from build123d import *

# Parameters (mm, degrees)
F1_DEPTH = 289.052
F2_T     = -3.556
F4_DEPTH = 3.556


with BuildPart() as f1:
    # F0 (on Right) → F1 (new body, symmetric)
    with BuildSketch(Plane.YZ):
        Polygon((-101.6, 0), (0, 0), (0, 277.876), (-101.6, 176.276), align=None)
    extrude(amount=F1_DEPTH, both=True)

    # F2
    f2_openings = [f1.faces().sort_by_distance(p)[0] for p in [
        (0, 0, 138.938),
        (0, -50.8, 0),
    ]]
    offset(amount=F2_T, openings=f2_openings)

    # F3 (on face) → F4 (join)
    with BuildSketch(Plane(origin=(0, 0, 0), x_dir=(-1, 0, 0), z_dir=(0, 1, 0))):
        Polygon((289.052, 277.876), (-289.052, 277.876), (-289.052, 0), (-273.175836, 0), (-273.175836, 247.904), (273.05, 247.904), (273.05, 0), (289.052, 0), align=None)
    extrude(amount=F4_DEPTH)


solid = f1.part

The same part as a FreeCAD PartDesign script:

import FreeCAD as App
import Part
import Sketcher
Q = App.Units.Quantity


def faces_at(feature, points):
    """Names of the faces that lie closest to the given points."""
    faces = feature.Shape.Faces
    near = lambda p: min(range(len(faces)), key=lambda i: faces[i].distToShape(Part.Vertex(*p))[0])
    return sorted({f"Face{near(p) + 1}" for p in points})


def add_polygon(sketch, points):
    """Adds a closed chain of lines whose ends are joined by coincident constraints."""
    first, n = sketch.GeometryCount, len(points)
    for a, b in zip(points, points[1:] + points[:1]):
        sketch.addGeometry(Part.LineSegment(App.Vector(*a, 0), App.Vector(*b, 0)), False)
    for i in range(n):
        sketch.addConstraint(Sketcher.Constraint("Coincident", first + i, 2, first + (i + 1) % n, 1))

doc = App.newDocument("Part")
body = doc.addObject("PartDesign::Body", "Body")

# Sketch on YZ plane
sketch1 = body.newObject("Sketcher::SketchObject", "Sketch")
sketch1.AttachmentSupport = (doc.getObject("YZ_Plane"), [""])
sketch1.MapMode = "FlatFace"
add_polygon(sketch1, [(-101.6, 0), (0, 0), (0, 277.876), (-101.6, 176.276)])  # lines 0-3
sketch1.addConstraint(Sketcher.Constraint("Horizontal", 0))
sketch1.addConstraint(Sketcher.Constraint("Vertical", 1))
sketch1.addConstraint(Sketcher.Constraint("Vertical", 3))
sketch1.addConstraint(Sketcher.Constraint("Coincident", 0, 2, -1, 1))
sketch1.addConstraint(Sketcher.Constraint("DistanceX", 0, 1, 0, 2, Q("4 in")))
sketch1.addConstraint(Sketcher.Constraint("Angle", 2, Q("-135 deg")))
sketch1.addConstraint(Sketcher.Constraint("DistanceY", 1, 1, 1, 2, Q("10.94 in")))
pad1 = body.newObject("PartDesign::Pad", "Pad")
pad1.Profile = sketch1
pad1.Length = Q("22.76 in")
pad1.Midplane = True
doc.recompute()

thickness = body.newObject("PartDesign::Thickness", "Thickness")
thickness.Base = (pad1, faces_at(pad1, [(0, 0, 138.938), (0, -50.8, 0)]))
thickness.Value = Q("0.14 in")
thickness.Reversed = True
thickness.Join = "Arc"

# Sketch on XZ plane
sketch2 = body.newObject("Sketcher::SketchObject", "Sketch001")
sketch2.AttachmentSupport = (doc.getObject("XZ_Plane"), [""])
sketch2.MapMode = "FlatFace"
add_polygon(sketch2, [(-289.052, 277.876), (289.052, 277.876), (289.052, 0), (273.175836, 0), (273.175836, 247.904), (-273.05, 247.904), (-273.05, 0), (-289.052, 0)])  # lines 0-7
sketch2.addConstraint(Sketcher.Constraint("Horizontal", 0))
sketch2.addConstraint(Sketcher.Constraint("Vertical", 1))
sketch2.addConstraint(Sketcher.Constraint("Horizontal", 2))
sketch2.addConstraint(Sketcher.Constraint("Vertical", 3))
sketch2.addConstraint(Sketcher.Constraint("Horizontal", 4))
sketch2.addConstraint(Sketcher.Constraint("Vertical", 5))
sketch2.addConstraint(Sketcher.Constraint("Horizontal", 6))
sketch2.addConstraint(Sketcher.Constraint("Vertical", 7))
sketch2.addConstraint(Sketcher.Constraint("Symmetric", 1, 2, 6, 2, -1, 1))
sketch2.addConstraint(Sketcher.Constraint("PointOnObject", 1, 2, -1))
sketch2.addConstraint(Sketcher.Constraint("DistanceX", 0, 1, 0, 2, Q("22.76 in")))
sketch2.addConstraint(Sketcher.Constraint("DistanceX", 6, 2, 6, 1, Q("0.63 in")))
sketch2.addConstraint(Sketcher.Constraint("DistanceY", 1, 2, 1, 1, Q("10.94 in")))
sketch2.addConstraint(Sketcher.Constraint("DistanceY", 3, 1, 3, 2, Q("9.76 in")))
sketch2.addConstraint(Sketcher.Constraint("DistanceX", 2, 2, 2, 1, 15.876164))
pad2 = body.newObject("PartDesign::Pad", "Pad001")
pad2.Profile = sketch2
pad2.Length = Q("0.14 in")
pad2.Reversed = True

doc.recompute()
